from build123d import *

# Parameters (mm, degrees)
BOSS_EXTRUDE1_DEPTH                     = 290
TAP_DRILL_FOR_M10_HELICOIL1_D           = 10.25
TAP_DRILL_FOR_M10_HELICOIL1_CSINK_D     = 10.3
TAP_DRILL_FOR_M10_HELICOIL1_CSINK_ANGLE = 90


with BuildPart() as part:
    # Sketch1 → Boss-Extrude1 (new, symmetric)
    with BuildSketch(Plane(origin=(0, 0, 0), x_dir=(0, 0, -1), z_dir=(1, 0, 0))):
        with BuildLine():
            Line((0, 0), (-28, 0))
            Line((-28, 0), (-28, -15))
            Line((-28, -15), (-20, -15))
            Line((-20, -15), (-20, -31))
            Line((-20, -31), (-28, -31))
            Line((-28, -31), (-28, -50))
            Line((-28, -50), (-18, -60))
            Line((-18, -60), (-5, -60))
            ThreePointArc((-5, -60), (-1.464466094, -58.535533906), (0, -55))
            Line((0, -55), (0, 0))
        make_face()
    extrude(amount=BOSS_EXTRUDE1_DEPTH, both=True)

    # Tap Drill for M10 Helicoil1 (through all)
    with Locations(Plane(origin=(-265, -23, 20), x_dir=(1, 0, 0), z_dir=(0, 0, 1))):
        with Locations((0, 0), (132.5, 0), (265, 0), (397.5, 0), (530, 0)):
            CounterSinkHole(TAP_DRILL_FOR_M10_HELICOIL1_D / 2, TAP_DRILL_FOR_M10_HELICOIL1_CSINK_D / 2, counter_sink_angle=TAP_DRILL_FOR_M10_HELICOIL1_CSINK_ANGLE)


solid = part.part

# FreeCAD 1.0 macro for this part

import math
import FreeCAD as App
import Part
import Sketcher

doc = App.newDocument("Part")
params = doc.addObject("Spreadsheet::Sheet", "Params")
for row, (alias, value) in enumerate([
    ("sketch1_radius", "5 mm"),
    ("sketch1_width", "15 mm"),
    ("sketch1_width2", "16 mm"),
    ("sketch1_width3", "19 mm"),
    ("sketch1_width4", "55 mm"),
    ("pad1_length", "580 mm"),
    ("sketch2_diameter", "10.25 mm"),
    ("hole_diameter", "10.25 mm"),
    ("hole_csink_diameter", "10.3 mm"),
], start=1):
    params.set(f"A{row}", alias)
    params.set(f"B{row}", "=" + value)
    params.setAlias(f"B{row}", alias)

body = doc.addObject("PartDesign::Body", "Body")

sketch1 = doc.addObject("Sketcher::SketchObject", "Sketch")
body.addObject(sketch1)
sketch1.AttachmentSupport = (doc.YZ_Plane, [""])
sketch1.MapMode = "FlatFace"
sketch1.addGeometry([
    Part.LineSegment(App.Vector(0, 0, 0), App.Vector(0, 28, 0)),
    Part.LineSegment(App.Vector(0, 28, 0), App.Vector(-15, 28, 0)),
    Part.LineSegment(App.Vector(-15, 28, 0), App.Vector(-15, 20, 0)),
    Part.LineSegment(App.Vector(-15, 20, 0), App.Vector(-31, 20, 0)),
    Part.LineSegment(App.Vector(-31, 20, 0), App.Vector(-31, 28, 0)),
    Part.LineSegment(App.Vector(-31, 28, 0), App.Vector(-50, 28, 0)),
    Part.LineSegment(App.Vector(-50, 28, 0), App.Vector(-60, 18, 0)),
    Part.LineSegment(App.Vector(-60, 18, 0), App.Vector(-60, 5, 0)),
    Part.ArcOfCircle(Part.Circle(App.Vector(-55, 5, 0), App.Vector(0, 0, 1), 5), math.radians(180), math.radians(270)),
    Part.LineSegment(App.Vector(-55, 0, 0), App.Vector(0, 0, 0)),
], False)
sketch1.addConstraint([
    Sketcher.Constraint("Coincident", 0, 2, 1, 1),
    Sketcher.Constraint("Coincident", 1, 2, 2, 1),
    Sketcher.Constraint("Coincident", 2, 2, 3, 1),
    Sketcher.Constraint("Coincident", 3, 2, 4, 1),
    Sketcher.Constraint("Coincident", 4, 2, 5, 1),
    Sketcher.Constraint("Coincident", 5, 2, 6, 1),
    Sketcher.Constraint("Coincident", 6, 2, 7, 1),
    Sketcher.Constraint("Tangent", 7, 2, 8, 1),
    Sketcher.Constraint("Tangent", 8, 2, 9, 1),
    Sketcher.Constraint("Coincident", 9, 2, 0, 1),
    Sketcher.Constraint("Vertical", 0),
    Sketcher.Constraint("Horizontal", 1),
    Sketcher.Constraint("Vertical", 2),
    Sketcher.Constraint("Horizontal", 3),
    Sketcher.Constraint("Vertical", 4),
    Sketcher.Constraint("Horizontal", 5),
    Sketcher.Constraint("Vertical", 7),
    Sketcher.Constraint("Horizontal", 9),
    Sketcher.Constraint("Coincident", 9, 2, -1, 1),
    Sketcher.Constraint("Horizontal", 1, 2, 4, 2),
    Sketcher.Constraint("Radius", 8, 5.0),
    Sketcher.Constraint("DistanceX", 1, 2, 1, 1, 15.0),
    Sketcher.Constraint("DistanceX", 3, 2, 3, 1, 16.0),
    Sketcher.Constraint("DistanceX", 5, 2, 5, 1, 19.0),
    Sketcher.Constraint("DistanceX", 9, 1, 9, 2, 55.0),
    Sketcher.Constraint("DistanceY", 0, 1, 0, 2, 28.0),
    Sketcher.Constraint("DistanceY", 2, 2, 2, 1, 8.0),
    Sketcher.Constraint("DistanceY", 7, 2, 7, 1, 13.0),
])
sketch1.setExpression("Constraints[20]", "Params.sketch1_radius")
sketch1.setExpression("Constraints[21]", "Params.sketch1_width")
sketch1.setExpression("Constraints[22]", "Params.sketch1_width2")
sketch1.setExpression("Constraints[23]", "Params.sketch1_width3")
sketch1.setExpression("Constraints[24]", "Params.sketch1_width4")
pad1 = doc.addObject("PartDesign::Pad", "Pad")
body.addObject(pad1)
pad1.Profile = sketch1
pad1.setExpression("Length", "Params.pad1_length")
pad1.Midplane = True

sketch2 = doc.addObject("Sketcher::SketchObject", "Sketch001")
body.addObject(sketch2)
sketch2.AttachmentSupport = (doc.XY_Plane, [""])
sketch2.MapMode = "FlatFace"
sketch2.AttachmentOffset = App.Placement(App.Vector(0, 0, 20), App.Rotation())
sketch2.addGeometry([
    Part.Circle(App.Vector(-265, -23, 0), App.Vector(0, 0, 1), 5.125),
    Part.Circle(App.Vector(-132.5, -23, 0), App.Vector(0, 0, 1), 5.125),
    Part.Circle(App.Vector(0, -23, 0), App.Vector(0, 0, 1), 5.125),
    Part.Circle(App.Vector(132.5, -23, 0), App.Vector(0, 0, 1), 5.125),
    Part.Circle(App.Vector(265, -23, 0), App.Vector(0, 0, 1), 5.125),
], False)
sketch2.addConstraint([
    Sketcher.Constraint("Equal", 0, 1),
    Sketcher.Constraint("Equal", 1, 2),
    Sketcher.Constraint("Equal", 2, 3),
    Sketcher.Constraint("Equal", 3, 4),
    Sketcher.Constraint("Symmetric", 1, 3, 3, 3, -2),
    Sketcher.Constraint("Symmetric", 0, 3, 4, 3, -2),
    Sketcher.Constraint("PointOnObject", 2, 3, -2),
    Sketcher.Constraint("Horizontal", 0, 3, 1, 3),
    Sketcher.Constraint("Horizontal", 1, 3, 2, 3),
    Sketcher.Constraint("Diameter", 0, 10.25),
    Sketcher.Constraint("DistanceX", 0, 3, -1, 1, 265.0),
    Sketcher.Constraint("DistanceY", 0, 3, -1, 1, 23.0),
    Sketcher.Constraint("DistanceX", 1, 3, 3, 3, 265.0),
])
sketch2.setExpression("Constraints[9]", "Params.sketch2_diameter")
doc.recompute()
hole = doc.addObject("PartDesign::Hole", "Hole")
body.addObject(hole)
hole.Profile = sketch2
hole.ThreadType = "None"
hole.setExpression("Diameter", "Params.hole_diameter")
hole.DepthType = "ThroughAll"
hole.HoleCutType = "Countersink"
hole.setExpression("HoleCutDiameter", "Params.hole_csink_diameter")
hole.HoleCutCountersinkAngle = 90

doc.recompute()
